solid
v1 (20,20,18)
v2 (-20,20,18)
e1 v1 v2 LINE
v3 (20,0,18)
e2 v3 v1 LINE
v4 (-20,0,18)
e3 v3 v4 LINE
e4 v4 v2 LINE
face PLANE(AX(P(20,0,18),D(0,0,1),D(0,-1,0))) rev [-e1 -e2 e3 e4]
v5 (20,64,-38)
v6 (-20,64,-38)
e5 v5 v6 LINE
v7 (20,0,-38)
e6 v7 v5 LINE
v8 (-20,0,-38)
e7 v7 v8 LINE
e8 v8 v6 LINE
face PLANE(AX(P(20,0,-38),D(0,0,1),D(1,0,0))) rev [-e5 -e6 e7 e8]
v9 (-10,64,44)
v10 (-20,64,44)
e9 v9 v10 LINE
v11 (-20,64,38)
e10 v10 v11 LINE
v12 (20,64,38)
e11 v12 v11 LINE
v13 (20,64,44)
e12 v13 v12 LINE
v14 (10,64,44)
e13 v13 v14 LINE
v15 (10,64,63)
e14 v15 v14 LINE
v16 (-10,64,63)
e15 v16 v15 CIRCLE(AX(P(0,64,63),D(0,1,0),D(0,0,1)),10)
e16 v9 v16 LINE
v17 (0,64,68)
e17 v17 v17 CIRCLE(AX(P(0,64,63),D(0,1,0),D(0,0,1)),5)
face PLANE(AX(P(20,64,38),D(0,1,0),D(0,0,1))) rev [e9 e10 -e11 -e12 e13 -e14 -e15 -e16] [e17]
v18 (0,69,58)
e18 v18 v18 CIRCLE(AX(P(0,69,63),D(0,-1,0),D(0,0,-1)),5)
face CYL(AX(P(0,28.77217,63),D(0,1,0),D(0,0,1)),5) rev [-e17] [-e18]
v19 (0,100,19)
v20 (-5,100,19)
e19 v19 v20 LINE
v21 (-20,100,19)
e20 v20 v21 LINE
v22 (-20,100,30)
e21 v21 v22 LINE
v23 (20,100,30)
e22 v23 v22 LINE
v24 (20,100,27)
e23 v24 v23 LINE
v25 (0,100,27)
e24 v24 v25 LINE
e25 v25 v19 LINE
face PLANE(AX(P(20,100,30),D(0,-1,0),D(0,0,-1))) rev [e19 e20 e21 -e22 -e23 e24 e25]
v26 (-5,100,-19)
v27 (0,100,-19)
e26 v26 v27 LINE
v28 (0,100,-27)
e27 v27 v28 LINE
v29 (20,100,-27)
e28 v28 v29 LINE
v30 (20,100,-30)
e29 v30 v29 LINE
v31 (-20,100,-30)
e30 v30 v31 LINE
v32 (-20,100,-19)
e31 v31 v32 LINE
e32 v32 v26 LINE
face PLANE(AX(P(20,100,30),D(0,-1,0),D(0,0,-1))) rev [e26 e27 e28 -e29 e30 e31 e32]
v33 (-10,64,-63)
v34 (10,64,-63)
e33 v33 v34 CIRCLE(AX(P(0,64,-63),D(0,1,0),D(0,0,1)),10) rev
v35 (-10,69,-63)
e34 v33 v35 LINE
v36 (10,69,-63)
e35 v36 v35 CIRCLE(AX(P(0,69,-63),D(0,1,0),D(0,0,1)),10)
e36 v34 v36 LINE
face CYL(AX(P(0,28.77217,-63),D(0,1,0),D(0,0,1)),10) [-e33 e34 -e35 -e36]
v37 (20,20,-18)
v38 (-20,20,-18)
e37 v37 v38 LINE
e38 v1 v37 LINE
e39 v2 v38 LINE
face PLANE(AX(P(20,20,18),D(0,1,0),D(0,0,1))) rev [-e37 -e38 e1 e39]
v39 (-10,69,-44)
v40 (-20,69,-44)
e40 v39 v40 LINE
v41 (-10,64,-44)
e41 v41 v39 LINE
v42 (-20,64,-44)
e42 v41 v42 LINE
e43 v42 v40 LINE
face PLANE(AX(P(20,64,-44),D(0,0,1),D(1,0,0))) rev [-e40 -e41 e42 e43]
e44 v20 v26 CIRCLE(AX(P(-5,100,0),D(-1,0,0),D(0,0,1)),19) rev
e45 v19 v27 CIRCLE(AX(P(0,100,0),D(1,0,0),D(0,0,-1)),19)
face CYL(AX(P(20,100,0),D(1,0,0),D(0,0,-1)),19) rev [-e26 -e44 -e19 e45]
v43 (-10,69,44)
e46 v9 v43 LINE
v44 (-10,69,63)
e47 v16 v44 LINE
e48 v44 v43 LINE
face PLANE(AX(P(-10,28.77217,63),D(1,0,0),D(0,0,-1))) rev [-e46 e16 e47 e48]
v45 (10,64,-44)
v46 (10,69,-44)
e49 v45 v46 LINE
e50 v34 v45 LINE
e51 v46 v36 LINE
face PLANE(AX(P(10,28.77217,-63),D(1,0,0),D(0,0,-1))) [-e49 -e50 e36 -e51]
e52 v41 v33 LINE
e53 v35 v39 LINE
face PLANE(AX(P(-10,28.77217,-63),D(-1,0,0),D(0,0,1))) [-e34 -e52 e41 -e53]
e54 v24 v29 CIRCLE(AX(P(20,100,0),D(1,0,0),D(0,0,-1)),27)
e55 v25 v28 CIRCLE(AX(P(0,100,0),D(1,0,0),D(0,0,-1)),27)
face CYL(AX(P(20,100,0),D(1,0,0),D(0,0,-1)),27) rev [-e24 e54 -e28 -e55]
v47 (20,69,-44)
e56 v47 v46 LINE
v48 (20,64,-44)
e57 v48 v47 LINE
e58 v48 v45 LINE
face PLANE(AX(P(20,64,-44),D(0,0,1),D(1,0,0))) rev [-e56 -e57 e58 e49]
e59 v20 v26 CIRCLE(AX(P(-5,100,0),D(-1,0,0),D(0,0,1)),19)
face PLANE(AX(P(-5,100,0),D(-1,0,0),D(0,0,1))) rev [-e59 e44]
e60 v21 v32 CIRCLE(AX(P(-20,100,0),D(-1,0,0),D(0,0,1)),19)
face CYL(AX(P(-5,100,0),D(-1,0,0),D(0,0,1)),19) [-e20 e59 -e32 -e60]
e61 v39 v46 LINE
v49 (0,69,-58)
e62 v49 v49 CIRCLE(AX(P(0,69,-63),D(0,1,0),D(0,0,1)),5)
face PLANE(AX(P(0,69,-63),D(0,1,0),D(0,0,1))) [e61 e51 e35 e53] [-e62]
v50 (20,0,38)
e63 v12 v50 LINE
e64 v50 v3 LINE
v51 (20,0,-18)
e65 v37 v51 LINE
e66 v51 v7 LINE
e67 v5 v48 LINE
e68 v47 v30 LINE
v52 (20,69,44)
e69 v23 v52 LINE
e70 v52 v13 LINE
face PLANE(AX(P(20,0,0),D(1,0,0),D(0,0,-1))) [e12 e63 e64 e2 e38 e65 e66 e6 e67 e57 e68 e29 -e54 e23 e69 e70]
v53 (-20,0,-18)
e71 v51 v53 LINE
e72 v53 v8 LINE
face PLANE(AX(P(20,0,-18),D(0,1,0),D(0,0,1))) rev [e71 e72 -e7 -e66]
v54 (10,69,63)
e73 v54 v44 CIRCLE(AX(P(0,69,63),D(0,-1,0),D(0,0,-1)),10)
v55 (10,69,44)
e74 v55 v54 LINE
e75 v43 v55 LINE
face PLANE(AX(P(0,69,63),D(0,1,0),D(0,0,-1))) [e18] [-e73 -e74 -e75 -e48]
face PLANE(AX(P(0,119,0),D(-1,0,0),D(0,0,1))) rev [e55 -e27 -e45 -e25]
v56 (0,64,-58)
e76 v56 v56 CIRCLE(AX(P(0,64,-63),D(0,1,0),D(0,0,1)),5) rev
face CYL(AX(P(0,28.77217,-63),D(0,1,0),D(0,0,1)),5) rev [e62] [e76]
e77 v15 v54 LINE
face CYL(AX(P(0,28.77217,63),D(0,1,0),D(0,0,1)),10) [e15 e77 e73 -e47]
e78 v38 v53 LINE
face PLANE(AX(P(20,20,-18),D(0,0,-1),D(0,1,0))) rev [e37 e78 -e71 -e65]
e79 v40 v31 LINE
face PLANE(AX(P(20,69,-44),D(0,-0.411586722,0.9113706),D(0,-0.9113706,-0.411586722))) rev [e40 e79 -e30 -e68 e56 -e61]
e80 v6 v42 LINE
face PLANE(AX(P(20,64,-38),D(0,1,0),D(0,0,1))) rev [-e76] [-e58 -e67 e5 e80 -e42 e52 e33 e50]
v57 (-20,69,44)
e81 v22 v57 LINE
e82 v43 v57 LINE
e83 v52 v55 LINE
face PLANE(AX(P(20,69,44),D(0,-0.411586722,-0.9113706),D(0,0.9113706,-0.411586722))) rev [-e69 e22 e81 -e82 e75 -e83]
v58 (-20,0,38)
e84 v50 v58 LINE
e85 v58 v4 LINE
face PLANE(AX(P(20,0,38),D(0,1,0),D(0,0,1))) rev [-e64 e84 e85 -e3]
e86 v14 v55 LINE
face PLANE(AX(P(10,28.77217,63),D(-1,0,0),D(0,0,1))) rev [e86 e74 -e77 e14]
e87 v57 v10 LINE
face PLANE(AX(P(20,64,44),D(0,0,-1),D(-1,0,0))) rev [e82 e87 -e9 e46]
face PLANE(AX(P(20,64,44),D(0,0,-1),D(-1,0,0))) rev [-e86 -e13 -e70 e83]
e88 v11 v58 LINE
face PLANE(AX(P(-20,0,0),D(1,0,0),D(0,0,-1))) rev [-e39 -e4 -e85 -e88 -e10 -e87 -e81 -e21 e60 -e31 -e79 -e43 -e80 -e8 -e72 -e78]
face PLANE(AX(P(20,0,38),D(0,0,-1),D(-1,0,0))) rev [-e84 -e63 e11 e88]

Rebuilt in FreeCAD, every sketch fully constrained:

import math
import FreeCAD as App
import Part
import Sketcher

doc = App.newDocument("Part")
body = doc.addObject("PartDesign::Body", "Body")

# Sketch on YZ plane
sketch1 = doc.addObject("Sketcher::SketchObject", "Sketch")
body.addObject(sketch1)
sketch1.AttachmentSupport = (doc.YZ_Plane, [""])
sketch1.MapMode = "FlatFace"
sketch1.addGeometry([
    Part.LineSegment(App.Vector(64, 38, 0), App.Vector(0, 38, 0)),  # 0
    Part.LineSegment(App.Vector(0, 38, 0), App.Vector(0, 18, 0)),  # 1
    Part.LineSegment(App.Vector(0, 18, 0), App.Vector(20, 18, 0)),  # 2
    Part.LineSegment(App.Vector(20, 18, 0), App.Vector(20, -18, 0)),  # 3
    Part.LineSegment(App.Vector(20, -18, 0), App.Vector(0, -18, 0)),  # 4
    Part.LineSegment(App.Vector(0, -18, 0), App.Vector(0, -38, 0)),  # 5
    Part.LineSegment(App.Vector(0, -38, 0), App.Vector(64, -38, 0)),  # 6
    Part.LineSegment(App.Vector(64, -38, 0), App.Vector(64, -44, 0)),  # 7
    Part.LineSegment(App.Vector(64, -44, 0), App.Vector(69, -44, 0)),  # 8
    Part.LineSegment(App.Vector(69, -44, 0), App.Vector(100, -30, 0)),  # 9
    Part.LineSegment(App.Vector(100, -30, 0), App.Vector(100, 30, 0)),  # 10
    Part.LineSegment(App.Vector(100, 30, 0), App.Vector(69, 44, 0)),  # 11
    Part.LineSegment(App.Vector(69, 44, 0), App.Vector(64, 44, 0)),  # 12
    Part.LineSegment(App.Vector(64, 44, 0), App.Vector(64, 38, 0)),  # 13
], False)
sketch1.addConstraint([
    Sketcher.Constraint("Coincident", 0, 2, 1, 1),
    Sketcher.Constraint("Coincident", 1, 2, 2, 1),
    Sketcher.Constraint("Coincident", 2, 2, 3, 1),
    Sketcher.Constraint("Coincident", 3, 2, 4, 1),
    Sketcher.Constraint("Coincident", 4, 2, 5, 1),
    Sketcher.Constraint("Coincident", 5, 2, 6, 1),
    Sketcher.Constraint("Coincident", 6, 2, 7, 1),
    Sketcher.Constraint("Coincident", 7, 2, 8, 1),
    Sketcher.Constraint("Coincident", 8, 2, 9, 1),
    Sketcher.Constraint("Coincident", 9, 2, 10, 1),
    Sketcher.Constraint("Coincident", 10, 2, 11, 1),
    Sketcher.Constraint("Coincident", 11, 2, 12, 1),
    Sketcher.Constraint("Coincident", 12, 2, 13, 1),
    Sketcher.Constraint("Coincident", 13, 2, 0, 1),
    Sketcher.Constraint("Horizontal", 0),
    Sketcher.Constraint("Vertical", 1),
    Sketcher.Constraint("Horizontal", 2),
    Sketcher.Constraint("Vertical", 3),
    Sketcher.Constraint("Horizontal", 4),
    Sketcher.Constraint("Vertical", 5),
    Sketcher.Constraint("Horizontal", 6),
    Sketcher.Constraint("Vertical", 7),
    Sketcher.Constraint("Horizontal", 8),
    Sketcher.Constraint("Vertical", 10),
    Sketcher.Constraint("Horizontal", 12),
    Sketcher.Constraint("Vertical", 13),
    Sketcher.Constraint("Symmetric", 1, 2, 4, 2, -1, 1),
    Sketcher.Constraint("Symmetric", 0, 2, 5, 2, -1),
    Sketcher.Constraint("Symmetric", 8, 2, 11, 2, -1),
    Sketcher.Constraint("Vertical", 7, 2, 12, 2),
    Sketcher.Constraint("Equal", 4, 1),
    Sketcher.Constraint("Equal", 9, 11),
    Sketcher.Constraint("DistanceX", 0, 2, 0, 1, 64.0),
    Sketcher.Constraint("DistanceX", 2, 1, 2, 2, 20.0),
    Sketcher.Constraint("DistanceX", 8, 1, 8, 2, 5.0),
    Sketcher.Constraint("DistanceY", 3, 2, 3, 1, 36.0),
    Sketcher.Constraint("DistanceY", 7, 2, 7, 1, 6.0),
    Sketcher.Constraint("DistanceY", 10, 1, 10, 2, 60.0),
    Sketcher.Constraint("DistanceX", -1, 1, 9, 2, 100.0),
])
pad1 = doc.addObject("PartDesign::Pad", "Pad")
body.addObject(pad1)
pad1.Profile = sketch1
pad1.Length = 40
pad1.Midplane = True

# Sketch on YZ plane
sketch2 = doc.addObject("Sketcher::SketchObject", "Sketch001")
body.addObject(sketch2)
sketch2.AttachmentSupport = (doc.YZ_Plane, [""])
sketch2.MapMode = "FlatFace"
sketch2.AttachmentOffset = App.Placement(App.Vector(0, 0, 20), App.Rotation())
sketch2.addGeometry(Part.Circle(App.Vector(100, 0, 0), App.Vector(0, 0, 1), 19), False)
sketch2.addConstraint([
    Sketcher.Constraint("PointOnObject", 0, 3, -1),
    Sketcher.Constraint("Diameter", 0, 38.0),
    Sketcher.Constraint("DistanceX", -1, 1, 0, 3, 100.0),
])
doc.recompute()
hole = doc.addObject("PartDesign::Hole", "Hole")
body.addObject(hole)
hole.Profile = sketch2
hole.ThreadType = "None"
hole.Diameter = 38
hole.DepthType = "Dimension"
hole.Depth = 100
hole.DrillPoint = "Angled"
hole.DrillPointAngle = 118
hole.HoleCutType = "Counterbore"
hole.HoleCutDiameter = 54
hole.HoleCutDepth = 20

# Sketch on YZ plane
sketch3 = doc.addObject("Sketcher::SketchObject", "Sketch002")
body.addObject(sketch3)
sketch3.AttachmentSupport = (doc.YZ_Plane, [""])
sketch3.MapMode = "FlatFace"
sketch3.AttachmentOffset = App.Placement(App.Vector(0, 0, -20), App.Rotation())
sketch3.addGeometry(Part.Circle(App.Vector(100, 0, 0), App.Vector(0, 0, 1), 19), False)
sketch3.addConstraint([
    Sketcher.Constraint("PointOnObject", 0, 3, -1),
    Sketcher.Constraint("Diameter", 0, 38.0),
    Sketcher.Constraint("DistanceX", -1, 1, 0, 3, 100.0),
])
pad2 = doc.addObject("PartDesign::Pad", "Pad001")
body.addObject(pad2)
pad2.Profile = sketch3
pad2.Length = 15

# Sketch on XZ plane
sketch4 = doc.addObject("Sketcher::SketchObject", "Sketch003")
body.addObject(sketch4)
sketch4.AttachmentSupport = (doc.XZ_Plane, [""])
sketch4.MapMode = "FlatFace"
sketch4.AttachmentOffset = App.Placement(App.Vector(0, 0, -69), App.Rotation())
sketch4.addGeometry([
    Part.LineSegment(App.Vector(-10, -63, 0), App.Vector(-10, -44, 0)),  # 0
    Part.LineSegment(App.Vector(-10, -44, 0), App.Vector(10, -44, 0)),  # 1
    Part.LineSegment(App.Vector(10, -44, 0), App.Vector(10, -63, 0)),  # 2
    Part.ArcOfCircle(Part.Circle(App.Vector(0, -63, 0), App.Vector(0, 0, 1), 10), math.radians(180), math.radians(360)),  # 3
    Part.Circle(App.Vector(0, -63, 0), App.Vector(0, 0, 1), 5),  # 4
], False)
sketch4.addConstraint([
    Sketcher.Constraint("Coincident", 0, 2, 1, 1),
    Sketcher.Constraint("Coincident", 1, 2, 2, 1),
    Sketcher.Constraint("Tangent", 2, 2, 3, 2),
    Sketcher.Constraint("Tangent", 3, 1, 0, 1),
    Sketcher.Constraint("Vertical", 0),
    Sketcher.Constraint("Horizontal", 1),
    Sketcher.Constraint("Vertical", 2),
    Sketcher.Constraint("Coincident", 4, 3, 3, 3),
    Sketcher.Constraint("PointOnObject", 3, 3, -2),
    Sketcher.Constraint("Diameter", 4, 10.0),
    Sketcher.Constraint("Radius", 3, 10.0),
    Sketcher.Constraint("DistanceY", 0, 1, 0, 2, 19.0),
    Sketcher.Constraint("DistanceY", 3, 3, -1, 1, 63.0),
])
pad3 = doc.addObject("PartDesign::Pad", "Pad002")
body.addObject(pad3)
pad3.Profile = sketch4
pad3.Length = 5
doc.recompute()

mirrored = doc.addObject("PartDesign::Mirrored", "Mirrored")
body.addObject(mirrored)
mirrored.Originals = [pad3]
mirrored.MirrorPlane = (doc.XY_Plane, [""])
body.Tip = mirrored

doc.recompute()
